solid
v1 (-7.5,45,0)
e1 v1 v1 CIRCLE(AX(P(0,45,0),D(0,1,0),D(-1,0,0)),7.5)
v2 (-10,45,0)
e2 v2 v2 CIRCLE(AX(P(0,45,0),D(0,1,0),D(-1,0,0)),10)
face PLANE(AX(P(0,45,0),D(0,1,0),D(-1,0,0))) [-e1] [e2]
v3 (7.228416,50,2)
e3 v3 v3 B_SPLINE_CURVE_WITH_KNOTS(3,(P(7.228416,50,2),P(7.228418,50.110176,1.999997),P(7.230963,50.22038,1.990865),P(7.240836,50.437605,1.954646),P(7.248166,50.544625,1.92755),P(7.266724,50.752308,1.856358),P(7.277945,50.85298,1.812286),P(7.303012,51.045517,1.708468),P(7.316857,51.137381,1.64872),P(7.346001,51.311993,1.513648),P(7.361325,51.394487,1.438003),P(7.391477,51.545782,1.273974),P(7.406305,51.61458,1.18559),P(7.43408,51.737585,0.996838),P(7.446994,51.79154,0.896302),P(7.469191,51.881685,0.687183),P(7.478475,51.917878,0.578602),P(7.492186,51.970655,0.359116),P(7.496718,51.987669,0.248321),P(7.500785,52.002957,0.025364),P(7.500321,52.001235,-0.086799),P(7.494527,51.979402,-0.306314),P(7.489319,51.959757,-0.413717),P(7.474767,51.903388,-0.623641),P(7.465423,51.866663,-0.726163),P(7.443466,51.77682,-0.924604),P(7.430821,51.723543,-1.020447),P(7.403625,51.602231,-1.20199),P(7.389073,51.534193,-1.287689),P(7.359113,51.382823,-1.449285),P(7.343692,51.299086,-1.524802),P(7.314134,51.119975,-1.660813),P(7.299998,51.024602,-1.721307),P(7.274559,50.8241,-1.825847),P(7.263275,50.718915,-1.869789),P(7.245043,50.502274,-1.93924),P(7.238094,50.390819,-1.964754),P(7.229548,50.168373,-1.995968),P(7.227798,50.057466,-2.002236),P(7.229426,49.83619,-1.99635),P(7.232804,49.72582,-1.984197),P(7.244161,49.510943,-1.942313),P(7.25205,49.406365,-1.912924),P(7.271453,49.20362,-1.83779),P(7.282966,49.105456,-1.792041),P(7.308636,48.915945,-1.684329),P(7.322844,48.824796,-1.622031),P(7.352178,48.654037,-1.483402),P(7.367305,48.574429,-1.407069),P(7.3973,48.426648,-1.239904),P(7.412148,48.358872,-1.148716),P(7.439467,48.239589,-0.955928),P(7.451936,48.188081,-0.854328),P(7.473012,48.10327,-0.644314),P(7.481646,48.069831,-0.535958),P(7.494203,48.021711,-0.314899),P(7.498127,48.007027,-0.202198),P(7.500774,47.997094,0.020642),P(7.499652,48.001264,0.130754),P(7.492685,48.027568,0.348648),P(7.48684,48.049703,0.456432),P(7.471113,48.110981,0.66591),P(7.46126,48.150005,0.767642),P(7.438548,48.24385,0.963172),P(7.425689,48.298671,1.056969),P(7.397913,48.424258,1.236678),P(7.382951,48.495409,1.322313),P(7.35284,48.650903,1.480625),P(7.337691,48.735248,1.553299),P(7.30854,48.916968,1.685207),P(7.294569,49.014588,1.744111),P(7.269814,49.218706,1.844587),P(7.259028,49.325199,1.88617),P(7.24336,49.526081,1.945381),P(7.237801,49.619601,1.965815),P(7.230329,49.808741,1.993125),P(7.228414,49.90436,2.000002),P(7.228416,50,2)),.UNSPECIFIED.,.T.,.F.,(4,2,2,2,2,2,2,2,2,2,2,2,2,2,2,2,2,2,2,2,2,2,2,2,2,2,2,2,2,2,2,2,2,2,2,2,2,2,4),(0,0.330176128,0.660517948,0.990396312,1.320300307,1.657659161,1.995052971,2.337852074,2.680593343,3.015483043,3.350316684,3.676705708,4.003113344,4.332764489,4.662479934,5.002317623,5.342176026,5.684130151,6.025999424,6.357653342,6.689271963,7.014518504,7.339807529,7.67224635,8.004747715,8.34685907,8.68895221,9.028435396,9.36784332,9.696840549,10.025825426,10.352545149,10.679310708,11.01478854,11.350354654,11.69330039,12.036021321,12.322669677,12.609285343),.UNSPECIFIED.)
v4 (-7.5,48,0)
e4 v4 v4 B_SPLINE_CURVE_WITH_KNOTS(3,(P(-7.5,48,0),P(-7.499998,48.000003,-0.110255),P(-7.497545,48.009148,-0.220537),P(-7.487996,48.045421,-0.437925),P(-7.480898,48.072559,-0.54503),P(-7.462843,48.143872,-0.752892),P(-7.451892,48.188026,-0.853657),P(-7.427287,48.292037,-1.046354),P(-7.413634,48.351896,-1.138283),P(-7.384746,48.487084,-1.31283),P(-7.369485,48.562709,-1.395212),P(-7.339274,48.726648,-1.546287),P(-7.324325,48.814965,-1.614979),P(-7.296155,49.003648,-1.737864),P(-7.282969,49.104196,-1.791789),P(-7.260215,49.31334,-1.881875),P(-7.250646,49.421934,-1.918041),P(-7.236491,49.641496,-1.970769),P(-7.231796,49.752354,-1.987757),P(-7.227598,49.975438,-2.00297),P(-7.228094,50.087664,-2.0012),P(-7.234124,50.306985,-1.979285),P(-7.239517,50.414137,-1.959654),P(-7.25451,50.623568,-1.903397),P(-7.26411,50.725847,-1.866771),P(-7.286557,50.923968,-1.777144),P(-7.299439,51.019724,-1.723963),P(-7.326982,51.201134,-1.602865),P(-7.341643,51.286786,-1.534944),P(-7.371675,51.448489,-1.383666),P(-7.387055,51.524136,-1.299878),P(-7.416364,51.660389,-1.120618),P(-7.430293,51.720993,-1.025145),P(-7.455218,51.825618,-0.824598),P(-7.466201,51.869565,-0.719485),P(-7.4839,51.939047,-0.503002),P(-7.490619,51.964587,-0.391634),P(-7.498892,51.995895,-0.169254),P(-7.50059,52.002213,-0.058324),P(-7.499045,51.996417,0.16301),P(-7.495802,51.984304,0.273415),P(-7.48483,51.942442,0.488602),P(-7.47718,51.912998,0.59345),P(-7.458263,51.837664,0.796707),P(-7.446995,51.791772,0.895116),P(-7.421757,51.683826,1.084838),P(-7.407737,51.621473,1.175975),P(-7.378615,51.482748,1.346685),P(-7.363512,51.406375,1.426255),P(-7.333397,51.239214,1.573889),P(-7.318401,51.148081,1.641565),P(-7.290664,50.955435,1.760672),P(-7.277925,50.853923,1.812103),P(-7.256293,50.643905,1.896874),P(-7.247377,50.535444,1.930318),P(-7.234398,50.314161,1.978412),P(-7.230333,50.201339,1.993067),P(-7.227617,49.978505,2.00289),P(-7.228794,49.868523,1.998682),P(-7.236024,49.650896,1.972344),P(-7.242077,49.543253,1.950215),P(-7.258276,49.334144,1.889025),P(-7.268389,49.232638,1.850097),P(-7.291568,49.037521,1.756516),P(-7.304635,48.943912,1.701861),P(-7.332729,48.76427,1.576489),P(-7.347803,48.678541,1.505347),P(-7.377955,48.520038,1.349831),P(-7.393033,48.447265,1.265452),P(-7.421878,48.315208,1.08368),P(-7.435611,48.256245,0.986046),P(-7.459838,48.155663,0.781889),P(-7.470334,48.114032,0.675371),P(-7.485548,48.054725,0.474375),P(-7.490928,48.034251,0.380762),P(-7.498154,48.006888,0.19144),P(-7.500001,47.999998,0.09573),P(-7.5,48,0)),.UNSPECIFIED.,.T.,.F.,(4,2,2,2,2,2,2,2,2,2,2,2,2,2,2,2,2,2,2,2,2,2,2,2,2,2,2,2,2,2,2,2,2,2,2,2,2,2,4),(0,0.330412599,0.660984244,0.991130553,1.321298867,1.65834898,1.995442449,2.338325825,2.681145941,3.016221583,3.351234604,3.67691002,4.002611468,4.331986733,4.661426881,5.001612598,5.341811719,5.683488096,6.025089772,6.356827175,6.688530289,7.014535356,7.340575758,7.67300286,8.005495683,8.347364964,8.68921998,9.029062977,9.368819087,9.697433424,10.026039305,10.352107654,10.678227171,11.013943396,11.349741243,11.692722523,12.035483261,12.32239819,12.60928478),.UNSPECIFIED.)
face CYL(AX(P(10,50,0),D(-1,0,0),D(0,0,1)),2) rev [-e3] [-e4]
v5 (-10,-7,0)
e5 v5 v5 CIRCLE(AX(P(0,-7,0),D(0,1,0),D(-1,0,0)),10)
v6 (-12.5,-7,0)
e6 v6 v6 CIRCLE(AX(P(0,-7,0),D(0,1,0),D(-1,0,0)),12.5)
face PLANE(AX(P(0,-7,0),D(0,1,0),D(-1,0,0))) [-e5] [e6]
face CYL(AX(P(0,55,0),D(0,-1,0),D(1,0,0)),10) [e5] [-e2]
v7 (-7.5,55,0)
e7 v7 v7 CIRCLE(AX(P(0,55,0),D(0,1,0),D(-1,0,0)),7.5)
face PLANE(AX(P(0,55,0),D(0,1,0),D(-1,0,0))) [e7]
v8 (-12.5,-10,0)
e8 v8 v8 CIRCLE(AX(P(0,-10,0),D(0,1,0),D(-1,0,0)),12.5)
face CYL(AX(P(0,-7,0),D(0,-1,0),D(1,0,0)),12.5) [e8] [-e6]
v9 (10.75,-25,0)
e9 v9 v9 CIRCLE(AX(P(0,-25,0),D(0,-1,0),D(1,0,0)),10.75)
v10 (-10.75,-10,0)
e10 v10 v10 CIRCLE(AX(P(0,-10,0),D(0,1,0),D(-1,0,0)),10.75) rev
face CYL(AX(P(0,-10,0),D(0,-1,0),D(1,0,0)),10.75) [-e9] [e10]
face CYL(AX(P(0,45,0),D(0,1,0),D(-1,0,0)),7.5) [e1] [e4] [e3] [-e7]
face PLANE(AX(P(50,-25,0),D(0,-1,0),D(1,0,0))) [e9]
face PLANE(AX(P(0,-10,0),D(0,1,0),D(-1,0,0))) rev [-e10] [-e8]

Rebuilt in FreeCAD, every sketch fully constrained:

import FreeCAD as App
import Part
import Sketcher
from FreeCAD import Vector
Q = App.Units.Quantity


def edges_at(feature, points):
    """Names of the edges that pass closest to the given points."""
    edges = feature.Shape.Edges
    near = lambda p: min(range(len(edges)), key=lambda i: edges[i].distToShape(Part.Vertex(*p))[0])
    return sorted({f"Edge{near(p) + 1}" for p in points})

doc = App.newDocument("Part")
params = doc.addObject("Spreadsheet::Sheet", "Params")
for row, (alias, value) in enumerate([
    ("sketch1_width", "50 mm"),
    ("sketch1_width2", "45 mm"),
    ("revolution_angle", "360 deg"),
    ("sketch2_diameter", "20 mm"),
    ("pad1_length", "30 mm"),
    ("sketch3_diameter", "20 mm"),
    ("sketch3_diameter2", "15 mm"),
    ("pocket1_length", "10 mm"),
    ("sketch4_diameter", "4 mm"),
    ("fillet_radius", "10 mm"),
    ("sketch5_diameter", "20 mm"),
    ("pad2_length", "67.5 mm"),
    ("sketch6_diameter", "100 mm"),
    ("sketch6_diameter2", "20 mm"),
    ("sketch7_diameter", "20 mm"),
    ("sketch7_diameter2", "21.5 mm"),
    ("pad3_length", "15 mm"),
    ("sketch8_diameter", "25 mm"),
    ("pad4_length", "3 mm"),
], start=1):
    params.set(f"A{row}", alias)
    params.set(f"B{row}", "=" + value)
    params.setAlias(f"B{row}", alias)

body = doc.addObject("PartDesign::Body", "Body")

# Sketch on XY plane
sketch1 = doc.addObject("Sketcher::SketchObject", "Sketch")
body.addObject(sketch1)
sketch1.AttachmentSupport = (doc.XY_Plane, [""])
sketch1.MapMode = "FlatFace"
sketch1.addGeometry([
    Part.LineSegment(Vector(50, 25, 0), Vector(0, 25, 0)),  # 0
    Part.LineSegment(Vector(0, 25, 0), Vector(0, 22.5, 0)),  # 1
    Part.LineSegment(Vector(0, 22.5, 0), Vector(45, 22.5, 0)),  # 2
    Part.LineSegment(Vector(45, 22.5, 0), Vector(45, -22.5, 0)),  # 3
    Part.LineSegment(Vector(45, -22.5, 0), Vector(0, -22.5, 0)),  # 4
    Part.LineSegment(Vector(0, -22.5, 0), Vector(0, -25, 0)),  # 5
    Part.LineSegment(Vector(0, -25, 0), Vector(50, -25, 0)),  # 6
    Part.LineSegment(Vector(50, -25, 0), Vector(50, 25, 0)),  # 7
], False)
sketch1.addConstraint([
    Sketcher.Constraint("Coincident", 0, 2, 1, 1),
    Sketcher.Constraint("Coincident", 1, 2, 2, 1),
    Sketcher.Constraint("Coincident", 2, 2, 3, 1),
    Sketcher.Constraint("Coincident", 3, 2, 4, 1),
    Sketcher.Constraint("Coincident", 4, 2, 5, 1),
    Sketcher.Constraint("Coincident", 5, 2, 6, 1),
    Sketcher.Constraint("Coincident", 6, 2, 7, 1),
    Sketcher.Constraint("Coincident", 7, 2, 0, 1),
    Sketcher.Constraint("Horizontal", 0),
    Sketcher.Constraint("Vertical", 1),
    Sketcher.Constraint("Horizontal", 2),
    Sketcher.Constraint("Vertical", 3),
    Sketcher.Constraint("Horizontal", 4),
    Sketcher.Constraint("Vertical", 5),
    Sketcher.Constraint("Horizontal", 6),
    Sketcher.Constraint("Vertical", 7),
    Sketcher.Constraint("Symmetric", 1, 2, 4, 2, -1, 1),
    Sketcher.Constraint("Symmetric", 0, 2, 5, 2, -1),
    Sketcher.Constraint("Equal", 4, 3),
    Sketcher.Constraint("Equal", 6, 7),
    Sketcher.Constraint("DistanceX", 0, 2, 0, 1, Q("50 mm")),
    Sketcher.Constraint("DistanceX", 2, 1, 2, 2, Q("45 mm")),
])
sketch1.setExpression("Constraints[20]", "Params.sketch1_width")
sketch1.setExpression("Constraints[21]", "Params.sketch1_width2")
revolution = doc.addObject("PartDesign::Revolution", "Revolution")
body.addObject(revolution)
revolution.Profile = sketch1
revolution.ReferenceAxis = (sketch1, ["V_Axis"])
revolution.setExpression("Angle", "Params.revolution_angle")

# Sketch on XZ plane
sketch2 = doc.addObject("Sketcher::SketchObject", "Sketch001")
body.addObject(sketch2)
sketch2.AttachmentSupport = (doc.XZ_Plane, [""])
sketch2.MapMode = "FlatFace"
sketch2.AttachmentOffset = App.Placement(Vector(0, 0, -25), App.Rotation())
sketch2.addGeometry(Part.Circle(Vector(0, 0, 0), Vector(0, 0, 1), 10), False)
sketch2.addConstraint([
    Sketcher.Constraint("Coincident", 0, 3, -1, 1),
    Sketcher.Constraint("Diameter", 0, Q("20 mm")),
])
sketch2.setExpression("Constraints[1]", "Params.sketch2_diameter")
pad1 = doc.addObject("PartDesign::Pad", "Pad")
body.addObject(pad1)
pad1.Profile = sketch2
pad1.setExpression("Length", "Params.pad1_length")
pad1.Reversed = True

# Sketch on XZ plane
sketch3 = doc.addObject("Sketcher::SketchObject", "Sketch002")
body.addObject(sketch3)
sketch3.AttachmentSupport = (doc.XZ_Plane, [""])
sketch3.MapMode = "FlatFace"
sketch3.AttachmentOffset = App.Placement(Vector(0, 0, -45), App.Rotation())
sketch3.addGeometry([
    Part.Circle(Vector(0, 0, 0), Vector(0, 0, 1), 10),
    Part.Circle(Vector(0, 0, 0), Vector(0, 0, 1), 8),
], False)
sketch3.addConstraint([
    Sketcher.Constraint("Coincident", 0, 3, -1, 1),
    Sketcher.Constraint("Coincident", 1, 3, -1, 1),
    Sketcher.Constraint("Diameter", 0, Q("20 mm")),
    Sketcher.Constraint("Diameter", 1, Q("15 mm")),
])
sketch3.setExpression("Constraints[2]", "Params.sketch3_diameter")
sketch3.setExpression("Constraints[3]", "Params.sketch3_diameter2")
pocket1 = doc.addObject("PartDesign::Pocket", "Pocket")
body.addObject(pocket1)
pocket1.Profile = sketch3
pocket1.setExpression("Length", "Params.pocket1_length")

# Sketch on YZ plane
sketch4 = doc.addObject("Sketcher::SketchObject", "Sketch003")
body.addObject(sketch4)
sketch4.AttachmentSupport = (doc.YZ_Plane, [""])
sketch4.MapMode = "FlatFace"
sketch4.addGeometry(Part.Circle(Vector(50, 0, 0), Vector(0, 0, 1), 2), False)
sketch4.addConstraint([
    Sketcher.Constraint("PointOnObject", 0, 3, -1),
    Sketcher.Constraint("Diameter", 0, Q("4 mm")),
    Sketcher.Constraint("DistanceX", -1, 1, 0, 3, Q("50 mm")),
])
sketch4.setExpression("Constraints[1]", "Params.sketch4_diameter")
pocket2 = doc.addObject("PartDesign::Pocket", "Pocket001")
body.addObject(pocket2)
pocket2.Profile = sketch4
pocket2.Type = "ThroughAll"
pocket2.Midplane = True
doc.recompute()

fillet = doc.addObject("PartDesign::Fillet", "Fillet")
body.addObject(fillet)
fillet.Base = (pocket2, edges_at(pocket2, [(-50, 25, 0)]))
fillet.setExpression("Radius", "Params.fillet_radius")

# Sketch on XZ plane
sketch5 = doc.addObject("Sketcher::SketchObject", "Sketch004")
body.addObject(sketch5)
sketch5.AttachmentSupport = (doc.XZ_Plane, [""])
sketch5.MapMode = "FlatFace"
sketch5.AttachmentOffset = App.Placement(Vector(0, 0, 22.5), App.Rotation())
sketch5.addGeometry(Part.Circle(Vector(0, 0, 0), Vector(0, 0, 1), 10), False)
sketch5.addConstraint([
    Sketcher.Constraint("Coincident", 0, 3, -1, 1),
    Sketcher.Constraint("Diameter", 0, Q("20 mm")),
])
sketch5.setExpression("Constraints[1]", "Params.sketch5_diameter")
pad2 = doc.addObject("PartDesign::Pad", "Pad001")
body.addObject(pad2)
pad2.Profile = sketch5
pad2.setExpression("Length", "Params.pad2_length")
pad2.Reversed = True

# Sketch on XZ plane
sketch6 = doc.addObject("Sketcher::SketchObject", "Sketch005")
body.addObject(sketch6)
sketch6.AttachmentSupport = (doc.XZ_Plane, [""])
sketch6.MapMode = "FlatFace"
sketch6.AttachmentOffset = App.Placement(Vector(0, 0, -55), App.Rotation())
sketch6.addGeometry([
    Part.Circle(Vector(0, 0, 0), Vector(0, 0, 1), 50),
    Part.Circle(Vector(0, 0, 0), Vector(0, 0, 1), 10),
], False)
sketch6.addConstraint([
    Sketcher.Constraint("Coincident", 0, 3, -1, 1),
    Sketcher.Constraint("Coincident", 1, 3, -1, 1),
    Sketcher.Constraint("Diameter", 0, Q("100 mm")),
    Sketcher.Constraint("Diameter", 1, Q("20 mm")),
])
sketch6.setExpression("Constraints[2]", "Params.sketch6_diameter")
sketch6.setExpression("Constraints[3]", "Params.sketch6_diameter2")
pocket3 = doc.addObject("PartDesign::Pocket", "Pocket002")
body.addObject(pocket3)
pocket3.Profile = sketch6
pocket3.Type = "ThroughAll"
pocket3.Reversed = True

# Sketch on XZ plane
sketch7 = doc.addObject("Sketcher::SketchObject", "Sketch006")
body.addObject(sketch7)
sketch7.AttachmentSupport = (doc.XZ_Plane, [""])
sketch7.MapMode = "FlatFace"
sketch7.AttachmentOffset = App.Placement(Vector(0, 0, 25), App.Rotation())
sketch7.addGeometry([
    Part.Circle(Vector(0, 0, 0), Vector(0, 0, 1), 11),
    Part.Circle(Vector(0, 0, 0), Vector(0, 0, 1), 10),
], False)
sketch7.addConstraint([
    Sketcher.Constraint("Coincident", 0, 3, -1, 1),
    Sketcher.Constraint("Coincident", 1, 3, -1, 1),
    Sketcher.Constraint("Diameter", 1, Q("20 mm")),
    Sketcher.Constraint("Diameter", 0, Q("21.5 mm")),
])
sketch7.setExpression("Constraints[2]", "Params.sketch7_diameter")
sketch7.setExpression("Constraints[3]", "Params.sketch7_diameter2")
pad3 = doc.addObject("PartDesign::Pad", "Pad002")
body.addObject(pad3)
pad3.Profile = sketch7
pad3.setExpression("Length", "Params.pad3_length")
pad3.Reversed = True

# Sketch on XZ plane
sketch8 = doc.addObject("Sketcher::SketchObject", "Sketch007")
body.addObject(sketch8)
sketch8.AttachmentSupport = (doc.XZ_Plane, [""])
sketch8.MapMode = "FlatFace"
sketch8.AttachmentOffset = App.Placement(Vector(0, 0, 10), App.Rotation())
sketch8.addGeometry(Part.Circle(Vector(0, 0, 0), Vector(0, 0, 1), 12), False)
sketch8.addConstraint([
    Sketcher.Constraint("Coincident", 0, 3, -1, 1),
    Sketcher.Constraint("Diameter", 0, Q("25 mm")),
])
sketch8.setExpression("Constraints[1]", "Params.sketch8_diameter")
pad4 = doc.addObject("PartDesign::Pad", "Pad003")
body.addObject(pad4)
pad4.Profile = sketch8
pad4.setExpression("Length", "Params.pad4_length")
pad4.Reversed = True

doc.recompute()
